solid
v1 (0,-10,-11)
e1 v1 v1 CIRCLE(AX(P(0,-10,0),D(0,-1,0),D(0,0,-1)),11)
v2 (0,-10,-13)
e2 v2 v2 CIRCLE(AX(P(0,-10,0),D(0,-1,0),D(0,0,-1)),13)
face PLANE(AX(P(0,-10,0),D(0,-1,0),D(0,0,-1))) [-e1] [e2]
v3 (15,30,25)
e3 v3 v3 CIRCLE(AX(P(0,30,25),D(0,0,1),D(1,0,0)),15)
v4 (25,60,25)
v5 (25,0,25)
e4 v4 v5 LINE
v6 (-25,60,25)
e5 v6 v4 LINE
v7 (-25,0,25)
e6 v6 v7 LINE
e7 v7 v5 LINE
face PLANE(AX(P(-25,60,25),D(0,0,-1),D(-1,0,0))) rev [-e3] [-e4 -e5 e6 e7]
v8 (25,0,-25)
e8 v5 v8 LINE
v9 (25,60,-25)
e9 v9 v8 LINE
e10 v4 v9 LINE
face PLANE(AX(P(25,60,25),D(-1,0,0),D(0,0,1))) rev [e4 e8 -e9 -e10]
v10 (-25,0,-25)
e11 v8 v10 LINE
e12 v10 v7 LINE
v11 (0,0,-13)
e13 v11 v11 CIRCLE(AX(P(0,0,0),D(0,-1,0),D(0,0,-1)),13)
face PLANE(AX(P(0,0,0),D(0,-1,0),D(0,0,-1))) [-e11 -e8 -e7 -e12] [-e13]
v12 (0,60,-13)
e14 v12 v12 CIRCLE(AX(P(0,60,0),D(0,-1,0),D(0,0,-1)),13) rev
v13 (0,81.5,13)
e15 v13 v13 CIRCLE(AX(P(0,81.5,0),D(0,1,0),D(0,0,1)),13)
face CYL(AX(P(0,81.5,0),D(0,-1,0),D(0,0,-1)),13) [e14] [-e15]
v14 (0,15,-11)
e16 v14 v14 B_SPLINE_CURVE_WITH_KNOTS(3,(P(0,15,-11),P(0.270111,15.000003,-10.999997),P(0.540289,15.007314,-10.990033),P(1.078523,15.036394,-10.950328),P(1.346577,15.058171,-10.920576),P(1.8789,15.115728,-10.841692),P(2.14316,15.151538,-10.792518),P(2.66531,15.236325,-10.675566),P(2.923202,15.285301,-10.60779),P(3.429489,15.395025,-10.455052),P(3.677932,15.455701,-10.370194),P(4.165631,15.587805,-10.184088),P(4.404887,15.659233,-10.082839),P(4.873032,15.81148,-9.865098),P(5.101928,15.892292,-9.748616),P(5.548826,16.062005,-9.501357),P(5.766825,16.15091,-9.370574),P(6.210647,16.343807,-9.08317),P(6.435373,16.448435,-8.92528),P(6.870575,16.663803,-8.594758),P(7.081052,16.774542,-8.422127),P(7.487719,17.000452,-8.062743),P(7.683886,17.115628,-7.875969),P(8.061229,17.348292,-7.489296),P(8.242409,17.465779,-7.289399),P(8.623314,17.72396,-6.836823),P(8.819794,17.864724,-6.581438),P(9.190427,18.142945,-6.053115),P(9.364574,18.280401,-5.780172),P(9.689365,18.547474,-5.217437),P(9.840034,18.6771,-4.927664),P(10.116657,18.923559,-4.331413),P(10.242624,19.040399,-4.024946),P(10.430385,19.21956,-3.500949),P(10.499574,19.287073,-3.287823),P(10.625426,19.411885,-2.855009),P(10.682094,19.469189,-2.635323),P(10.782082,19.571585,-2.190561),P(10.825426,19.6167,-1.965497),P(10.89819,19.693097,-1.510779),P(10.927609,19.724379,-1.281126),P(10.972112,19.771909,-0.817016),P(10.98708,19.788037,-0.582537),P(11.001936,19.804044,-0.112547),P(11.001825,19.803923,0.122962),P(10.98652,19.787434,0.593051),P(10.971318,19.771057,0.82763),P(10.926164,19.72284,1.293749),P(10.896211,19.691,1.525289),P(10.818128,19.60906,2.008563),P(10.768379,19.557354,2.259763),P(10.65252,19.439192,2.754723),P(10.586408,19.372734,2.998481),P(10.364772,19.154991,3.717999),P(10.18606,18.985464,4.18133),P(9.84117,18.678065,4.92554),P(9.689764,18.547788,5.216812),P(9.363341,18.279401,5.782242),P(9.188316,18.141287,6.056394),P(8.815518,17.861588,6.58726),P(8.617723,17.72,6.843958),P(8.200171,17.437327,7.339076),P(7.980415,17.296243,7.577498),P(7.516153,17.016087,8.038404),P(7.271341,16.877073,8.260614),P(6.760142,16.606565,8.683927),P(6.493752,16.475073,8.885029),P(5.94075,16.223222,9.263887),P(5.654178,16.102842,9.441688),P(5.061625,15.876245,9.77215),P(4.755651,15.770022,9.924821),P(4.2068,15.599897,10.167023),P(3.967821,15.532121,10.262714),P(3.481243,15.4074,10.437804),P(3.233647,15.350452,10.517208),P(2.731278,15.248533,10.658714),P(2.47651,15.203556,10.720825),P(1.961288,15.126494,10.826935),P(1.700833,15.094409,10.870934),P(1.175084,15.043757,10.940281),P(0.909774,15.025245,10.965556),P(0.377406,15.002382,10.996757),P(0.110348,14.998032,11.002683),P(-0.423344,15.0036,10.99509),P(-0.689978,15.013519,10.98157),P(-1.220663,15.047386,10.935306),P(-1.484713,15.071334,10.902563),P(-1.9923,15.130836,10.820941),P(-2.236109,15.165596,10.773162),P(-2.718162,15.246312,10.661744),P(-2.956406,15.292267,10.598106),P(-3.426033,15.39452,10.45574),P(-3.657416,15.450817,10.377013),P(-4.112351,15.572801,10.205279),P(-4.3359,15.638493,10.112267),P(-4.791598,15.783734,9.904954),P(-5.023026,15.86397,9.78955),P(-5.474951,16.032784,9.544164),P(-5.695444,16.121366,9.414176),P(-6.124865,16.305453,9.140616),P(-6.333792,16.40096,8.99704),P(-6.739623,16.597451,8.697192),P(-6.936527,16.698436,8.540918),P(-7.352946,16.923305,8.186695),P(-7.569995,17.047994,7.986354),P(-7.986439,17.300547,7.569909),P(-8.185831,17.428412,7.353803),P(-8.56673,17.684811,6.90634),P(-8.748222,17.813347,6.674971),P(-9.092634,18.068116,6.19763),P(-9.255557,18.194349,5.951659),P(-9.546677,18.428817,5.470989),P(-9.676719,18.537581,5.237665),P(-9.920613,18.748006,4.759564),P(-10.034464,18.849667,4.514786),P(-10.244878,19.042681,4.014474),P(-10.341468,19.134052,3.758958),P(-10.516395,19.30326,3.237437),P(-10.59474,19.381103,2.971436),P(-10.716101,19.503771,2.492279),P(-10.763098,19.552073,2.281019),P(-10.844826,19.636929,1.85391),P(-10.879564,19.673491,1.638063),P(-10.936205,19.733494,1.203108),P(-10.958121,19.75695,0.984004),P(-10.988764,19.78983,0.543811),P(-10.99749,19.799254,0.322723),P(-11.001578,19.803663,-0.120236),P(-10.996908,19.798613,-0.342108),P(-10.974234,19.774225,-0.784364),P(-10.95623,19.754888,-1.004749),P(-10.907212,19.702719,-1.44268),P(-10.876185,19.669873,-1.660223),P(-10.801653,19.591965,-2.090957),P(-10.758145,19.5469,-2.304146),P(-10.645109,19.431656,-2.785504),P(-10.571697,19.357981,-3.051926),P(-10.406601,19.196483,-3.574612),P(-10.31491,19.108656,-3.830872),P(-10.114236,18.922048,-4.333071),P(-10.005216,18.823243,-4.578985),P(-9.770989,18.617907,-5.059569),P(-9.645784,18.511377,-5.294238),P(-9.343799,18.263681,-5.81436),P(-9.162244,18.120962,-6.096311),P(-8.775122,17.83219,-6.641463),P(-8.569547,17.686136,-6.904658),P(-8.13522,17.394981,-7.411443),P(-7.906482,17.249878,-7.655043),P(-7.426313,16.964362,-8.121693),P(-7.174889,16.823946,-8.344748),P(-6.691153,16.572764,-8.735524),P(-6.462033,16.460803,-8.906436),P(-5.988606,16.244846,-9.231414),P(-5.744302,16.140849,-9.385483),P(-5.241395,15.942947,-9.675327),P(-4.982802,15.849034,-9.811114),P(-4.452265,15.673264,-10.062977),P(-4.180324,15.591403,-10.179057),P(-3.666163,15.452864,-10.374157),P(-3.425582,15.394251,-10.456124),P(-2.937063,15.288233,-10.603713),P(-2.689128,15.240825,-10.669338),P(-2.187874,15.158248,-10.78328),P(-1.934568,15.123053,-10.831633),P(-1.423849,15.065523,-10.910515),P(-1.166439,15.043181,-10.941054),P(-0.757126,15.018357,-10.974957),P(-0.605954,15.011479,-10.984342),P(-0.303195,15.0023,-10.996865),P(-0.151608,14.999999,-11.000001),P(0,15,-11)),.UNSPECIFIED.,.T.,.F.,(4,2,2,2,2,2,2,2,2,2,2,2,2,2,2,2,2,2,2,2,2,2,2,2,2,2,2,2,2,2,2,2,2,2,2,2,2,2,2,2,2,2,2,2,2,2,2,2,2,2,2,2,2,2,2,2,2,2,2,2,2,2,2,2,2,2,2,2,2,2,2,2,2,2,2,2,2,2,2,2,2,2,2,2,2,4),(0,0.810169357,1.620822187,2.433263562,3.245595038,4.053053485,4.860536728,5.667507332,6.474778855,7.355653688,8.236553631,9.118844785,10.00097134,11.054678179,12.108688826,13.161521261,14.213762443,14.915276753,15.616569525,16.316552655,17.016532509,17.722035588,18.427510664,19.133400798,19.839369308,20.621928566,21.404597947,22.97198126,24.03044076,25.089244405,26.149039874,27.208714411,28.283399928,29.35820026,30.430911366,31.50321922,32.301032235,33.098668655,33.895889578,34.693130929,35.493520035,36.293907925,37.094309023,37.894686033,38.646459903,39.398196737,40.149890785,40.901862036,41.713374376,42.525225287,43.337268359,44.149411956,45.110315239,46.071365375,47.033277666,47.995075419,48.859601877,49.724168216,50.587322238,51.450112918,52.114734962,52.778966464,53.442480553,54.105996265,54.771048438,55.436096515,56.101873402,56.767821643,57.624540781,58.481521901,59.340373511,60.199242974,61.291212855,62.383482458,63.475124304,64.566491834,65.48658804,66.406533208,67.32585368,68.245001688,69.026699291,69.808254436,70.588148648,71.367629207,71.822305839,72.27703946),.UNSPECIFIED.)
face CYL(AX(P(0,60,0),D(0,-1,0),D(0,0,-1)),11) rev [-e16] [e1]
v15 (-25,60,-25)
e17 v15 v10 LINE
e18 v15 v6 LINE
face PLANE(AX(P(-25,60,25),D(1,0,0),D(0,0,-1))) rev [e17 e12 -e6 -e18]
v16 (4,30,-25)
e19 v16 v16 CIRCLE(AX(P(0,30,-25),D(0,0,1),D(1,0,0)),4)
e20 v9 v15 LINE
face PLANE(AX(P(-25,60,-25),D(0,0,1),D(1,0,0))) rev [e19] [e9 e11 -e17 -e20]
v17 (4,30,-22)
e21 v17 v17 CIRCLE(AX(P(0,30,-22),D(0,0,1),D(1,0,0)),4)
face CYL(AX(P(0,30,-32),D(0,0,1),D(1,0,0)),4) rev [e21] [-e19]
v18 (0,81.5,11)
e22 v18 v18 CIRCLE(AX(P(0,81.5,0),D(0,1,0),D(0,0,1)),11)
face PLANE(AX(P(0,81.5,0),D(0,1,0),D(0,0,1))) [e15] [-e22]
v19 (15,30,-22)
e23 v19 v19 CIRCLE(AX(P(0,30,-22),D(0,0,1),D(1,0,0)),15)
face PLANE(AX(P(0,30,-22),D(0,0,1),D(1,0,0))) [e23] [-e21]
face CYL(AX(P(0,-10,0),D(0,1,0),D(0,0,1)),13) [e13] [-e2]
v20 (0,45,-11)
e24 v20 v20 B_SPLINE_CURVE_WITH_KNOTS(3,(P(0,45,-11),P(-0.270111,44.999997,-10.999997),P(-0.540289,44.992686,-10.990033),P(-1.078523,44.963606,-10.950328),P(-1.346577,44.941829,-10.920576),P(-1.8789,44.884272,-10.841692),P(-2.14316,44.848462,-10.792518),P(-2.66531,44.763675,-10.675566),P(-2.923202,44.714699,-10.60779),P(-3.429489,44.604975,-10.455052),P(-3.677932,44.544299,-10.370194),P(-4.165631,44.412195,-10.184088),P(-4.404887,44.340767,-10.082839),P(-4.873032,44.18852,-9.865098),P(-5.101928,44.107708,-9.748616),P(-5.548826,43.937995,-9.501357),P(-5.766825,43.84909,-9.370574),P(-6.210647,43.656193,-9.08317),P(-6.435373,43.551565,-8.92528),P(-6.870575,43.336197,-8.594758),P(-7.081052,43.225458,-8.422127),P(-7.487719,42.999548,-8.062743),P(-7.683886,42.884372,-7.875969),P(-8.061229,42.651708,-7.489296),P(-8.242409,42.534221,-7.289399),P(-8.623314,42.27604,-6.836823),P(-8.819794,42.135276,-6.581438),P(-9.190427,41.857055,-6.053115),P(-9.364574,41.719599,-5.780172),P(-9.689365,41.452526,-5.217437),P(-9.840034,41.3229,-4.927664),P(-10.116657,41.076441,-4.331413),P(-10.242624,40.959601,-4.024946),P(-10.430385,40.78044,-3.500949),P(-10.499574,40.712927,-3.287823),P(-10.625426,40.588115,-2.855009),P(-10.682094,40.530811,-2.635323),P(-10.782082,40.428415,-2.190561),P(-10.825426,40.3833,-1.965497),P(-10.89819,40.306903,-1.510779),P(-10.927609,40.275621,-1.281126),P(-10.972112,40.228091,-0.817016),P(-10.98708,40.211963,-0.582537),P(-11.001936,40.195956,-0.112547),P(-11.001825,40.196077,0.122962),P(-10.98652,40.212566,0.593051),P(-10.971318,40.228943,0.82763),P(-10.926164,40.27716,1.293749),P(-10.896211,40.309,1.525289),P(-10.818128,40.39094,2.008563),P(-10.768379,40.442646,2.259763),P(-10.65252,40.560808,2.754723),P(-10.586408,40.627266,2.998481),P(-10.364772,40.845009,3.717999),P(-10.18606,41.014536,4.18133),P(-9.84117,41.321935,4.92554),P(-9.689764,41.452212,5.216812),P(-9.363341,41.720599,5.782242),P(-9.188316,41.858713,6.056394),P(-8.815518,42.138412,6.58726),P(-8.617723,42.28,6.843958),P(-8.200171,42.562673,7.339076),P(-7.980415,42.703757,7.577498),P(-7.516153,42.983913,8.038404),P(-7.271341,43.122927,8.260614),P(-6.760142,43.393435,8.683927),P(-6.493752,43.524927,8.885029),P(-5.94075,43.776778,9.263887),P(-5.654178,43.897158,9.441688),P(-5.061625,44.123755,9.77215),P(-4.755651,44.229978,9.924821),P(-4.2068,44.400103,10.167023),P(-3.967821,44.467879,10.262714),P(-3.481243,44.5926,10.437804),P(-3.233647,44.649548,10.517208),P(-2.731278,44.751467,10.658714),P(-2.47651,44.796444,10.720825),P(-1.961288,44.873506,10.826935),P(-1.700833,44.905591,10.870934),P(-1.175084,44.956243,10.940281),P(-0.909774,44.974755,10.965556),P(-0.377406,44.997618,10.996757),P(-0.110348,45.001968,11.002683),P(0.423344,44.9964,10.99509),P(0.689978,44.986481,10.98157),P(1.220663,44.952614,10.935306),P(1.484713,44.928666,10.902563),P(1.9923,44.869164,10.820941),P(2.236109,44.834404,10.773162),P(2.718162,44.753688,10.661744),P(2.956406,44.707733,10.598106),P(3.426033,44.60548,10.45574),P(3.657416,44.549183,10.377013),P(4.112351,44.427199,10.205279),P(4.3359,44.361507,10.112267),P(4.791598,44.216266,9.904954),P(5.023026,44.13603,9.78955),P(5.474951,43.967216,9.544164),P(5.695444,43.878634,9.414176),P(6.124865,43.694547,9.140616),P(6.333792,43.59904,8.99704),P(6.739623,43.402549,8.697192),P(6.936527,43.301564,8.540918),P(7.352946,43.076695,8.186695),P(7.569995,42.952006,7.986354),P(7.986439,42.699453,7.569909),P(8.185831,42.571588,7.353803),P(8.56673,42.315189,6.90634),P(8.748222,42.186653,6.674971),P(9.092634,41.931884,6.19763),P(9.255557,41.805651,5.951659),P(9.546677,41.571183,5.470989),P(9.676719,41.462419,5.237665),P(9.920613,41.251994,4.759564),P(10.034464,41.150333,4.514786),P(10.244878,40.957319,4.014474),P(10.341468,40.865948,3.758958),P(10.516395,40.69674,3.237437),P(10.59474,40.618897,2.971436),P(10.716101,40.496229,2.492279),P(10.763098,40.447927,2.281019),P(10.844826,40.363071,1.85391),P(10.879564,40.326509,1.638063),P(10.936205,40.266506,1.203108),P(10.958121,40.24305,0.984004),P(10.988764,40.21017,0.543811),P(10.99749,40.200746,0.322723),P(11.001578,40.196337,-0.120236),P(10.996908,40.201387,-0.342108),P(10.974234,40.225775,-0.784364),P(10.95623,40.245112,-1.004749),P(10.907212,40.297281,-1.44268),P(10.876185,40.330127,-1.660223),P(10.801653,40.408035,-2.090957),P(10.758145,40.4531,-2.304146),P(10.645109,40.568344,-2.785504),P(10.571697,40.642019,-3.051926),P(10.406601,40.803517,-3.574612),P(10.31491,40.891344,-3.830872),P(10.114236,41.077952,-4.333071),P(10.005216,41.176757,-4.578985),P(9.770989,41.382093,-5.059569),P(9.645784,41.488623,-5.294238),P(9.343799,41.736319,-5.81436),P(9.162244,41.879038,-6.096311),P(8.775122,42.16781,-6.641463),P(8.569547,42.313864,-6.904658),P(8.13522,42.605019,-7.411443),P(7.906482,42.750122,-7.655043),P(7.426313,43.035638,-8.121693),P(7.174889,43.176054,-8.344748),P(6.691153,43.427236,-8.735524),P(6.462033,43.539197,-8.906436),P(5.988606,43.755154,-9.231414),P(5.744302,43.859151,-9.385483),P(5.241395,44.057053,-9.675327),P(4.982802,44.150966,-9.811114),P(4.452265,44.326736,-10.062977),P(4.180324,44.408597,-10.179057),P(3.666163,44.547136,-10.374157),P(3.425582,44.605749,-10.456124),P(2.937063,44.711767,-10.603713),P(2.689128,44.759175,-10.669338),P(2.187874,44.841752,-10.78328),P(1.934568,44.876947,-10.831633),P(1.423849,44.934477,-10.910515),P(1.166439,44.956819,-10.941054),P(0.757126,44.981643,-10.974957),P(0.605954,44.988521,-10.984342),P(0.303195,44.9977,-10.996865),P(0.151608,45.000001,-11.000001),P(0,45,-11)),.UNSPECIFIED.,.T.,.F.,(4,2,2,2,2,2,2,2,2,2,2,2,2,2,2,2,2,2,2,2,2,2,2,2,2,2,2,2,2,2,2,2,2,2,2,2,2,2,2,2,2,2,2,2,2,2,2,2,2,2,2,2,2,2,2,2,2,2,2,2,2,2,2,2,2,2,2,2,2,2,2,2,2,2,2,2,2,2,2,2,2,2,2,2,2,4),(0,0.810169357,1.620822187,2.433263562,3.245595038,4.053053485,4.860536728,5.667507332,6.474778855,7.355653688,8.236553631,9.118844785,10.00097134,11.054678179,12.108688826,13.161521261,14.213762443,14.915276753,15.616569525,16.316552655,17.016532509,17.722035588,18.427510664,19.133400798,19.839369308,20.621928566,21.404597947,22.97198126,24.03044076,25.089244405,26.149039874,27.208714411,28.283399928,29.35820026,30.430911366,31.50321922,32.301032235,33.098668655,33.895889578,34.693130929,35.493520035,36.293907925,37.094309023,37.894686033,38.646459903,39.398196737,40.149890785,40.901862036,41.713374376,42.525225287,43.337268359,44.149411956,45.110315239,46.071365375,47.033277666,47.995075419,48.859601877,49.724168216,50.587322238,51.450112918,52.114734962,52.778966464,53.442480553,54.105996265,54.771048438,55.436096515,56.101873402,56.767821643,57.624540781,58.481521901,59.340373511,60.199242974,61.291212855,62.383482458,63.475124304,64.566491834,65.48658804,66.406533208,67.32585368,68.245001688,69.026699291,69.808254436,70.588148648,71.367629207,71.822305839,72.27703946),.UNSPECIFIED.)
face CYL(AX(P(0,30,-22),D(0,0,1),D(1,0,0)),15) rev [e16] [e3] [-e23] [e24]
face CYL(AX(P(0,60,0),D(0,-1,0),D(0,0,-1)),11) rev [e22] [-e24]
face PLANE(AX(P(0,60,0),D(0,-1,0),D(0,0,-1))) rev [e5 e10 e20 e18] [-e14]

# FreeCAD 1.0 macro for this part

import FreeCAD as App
import Part
import Sketcher

V = App.Vector
Q = App.Units.Quantity


def add_polygon(sketch, points):
    """Adds a closed chain of lines whose ends are joined by coincident constraints."""
    first, n = sketch.GeometryCount, len(points)
    for a, b in zip(points, points[1:] + points[:1]):
        sketch.addGeometry(Part.LineSegment(App.Vector(*a, 0), App.Vector(*b, 0)), False)
    for i in range(n):
        sketch.addConstraint(Sketcher.Constraint("Coincident", first + i, 2, first + (i + 1) % n, 1))

doc = App.newDocument("Part")
body = doc.addObject("PartDesign::Body", "Body")

# Sketch on XZ plane
sketch1 = body.newObject("Sketcher::SketchObject", "Sketch")
sketch1.AttachmentSupport = (doc.getObject("XZ_Plane"), [""])
sketch1.MapMode = "FlatFace"
add_polygon(sketch1, [(-25, -25), (-25, 25), (25, 25), (25, -25)])  # lines 0-3
sketch1.addGeometry(Part.Circle(V(0, 0, 0), V(0, 0, 1), 11), False)  # 4
sketch1.addConstraint([
    Sketcher.Constraint("Vertical", 0),
    Sketcher.Constraint("Horizontal", 1),
    Sketcher.Constraint("Vertical", 2),
    Sketcher.Constraint("Horizontal", 3),
    Sketcher.Constraint("Coincident", 4, 3, -1, 1),
    Sketcher.Constraint("Symmetric", 0, 2, 2, 2, -1, 1),
    Sketcher.Constraint("Equal", 3, 0),
    Sketcher.Constraint("Diameter", 4, Q("22 mm")),
    Sketcher.Constraint("DistanceX", 1, 1, 1, 2, Q("50 mm")),
])
pad1 = body.newObject("PartDesign::Pad", "Pad")
pad1.Profile = sketch1
pad1.Length = 60
pad1.Reversed = True

# Sketch on XY plane
sketch2 = body.newObject("Sketcher::SketchObject", "Sketch001")
sketch2.AttachmentSupport = (doc.getObject("XY_Plane"), [""])
sketch2.MapMode = "FlatFace"
sketch2.AttachmentOffset = App.Placement(V(0, 0, 25), App.Rotation())
sketch2.addGeometry(Part.Circle(V(0, 30, 0), V(0, 0, 1), 15), False)
sketch2.addConstraint([
    Sketcher.Constraint("PointOnObject", 0, 3, -2),
    Sketcher.Constraint("Diameter", 0, Q("30 mm")),
    Sketcher.Constraint("DistanceY", -1, 1, 0, 3, Q("30 mm")),
])
pocket1 = body.newObject("PartDesign::Pocket", "Pocket")
pocket1.Profile = sketch2
pocket1.Length = 47

# Sketch on XY plane
sketch3 = body.newObject("Sketcher::SketchObject", "Sketch002")
sketch3.AttachmentSupport = (doc.getObject("XY_Plane"), [""])
sketch3.MapMode = "FlatFace"
sketch3.AttachmentOffset = App.Placement(V(0, 0, -22), App.Rotation())
sketch3.addGeometry(Part.Circle(V(0, 30, 0), V(0, 0, 1), 4), False)
sketch3.addConstraint([
    Sketcher.Constraint("PointOnObject", 0, 3, -2),
    Sketcher.Constraint("Diameter", 0, Q("8 mm")),
    Sketcher.Constraint("DistanceY", -1, 1, 0, 3, Q("30 mm")),
])
pocket2 = body.newObject("PartDesign::Pocket", "Pocket001")
pocket2.Profile = sketch3
pocket2.Length = 10

# Sketch on XZ plane
sketch4 = body.newObject("Sketcher::SketchObject", "Sketch003")
sketch4.AttachmentSupport = (doc.getObject("XZ_Plane"), [""])
sketch4.MapMode = "FlatFace"
sketch4.AttachmentOffset = App.Placement(V(0, 0, -60), App.Rotation())
sketch4.addGeometry([
    Part.Circle(V(0, 0, 0), V(0, 0, 1), 13),
    Part.Circle(V(0, 0, 0), V(0, 0, 1), 11),
], False)
sketch4.addConstraint([
    Sketcher.Constraint("Coincident", 0, 3, -1, 1),
    Sketcher.Constraint("Coincident", 1, 3, -1, 1),
    Sketcher.Constraint("Diameter", 0, Q("26 mm")),
    Sketcher.Constraint("Diameter", 1, Q("22 mm")),
])
pad2 = body.newObject("PartDesign::Pad", "Pad001")
pad2.Profile = sketch4
pad2.Length = 21.5
pad2.Reversed = True

# Sketch on XZ plane
sketch5 = body.newObject("Sketcher::SketchObject", "Sketch004")
sketch5.AttachmentSupport = (doc.getObject("XZ_Plane"), [""])
sketch5.MapMode = "FlatFace"
sketch5.addGeometry([
    Part.Circle(V(0, 0, 0), V(0, 0, 1), 13),
    Part.Circle(V(0, 0, 0), V(0, 0, 1), 11),
], False)
sketch5.addConstraint([
    Sketcher.Constraint("Coincident", 0, 3, -1, 1),
    Sketcher.Constraint("Coincident", 1, 3, -1, 1),
    Sketcher.Constraint("Diameter", 0, Q("26 mm")),
    Sketcher.Constraint("Diameter", 1, Q("22 mm")),
])
pad3 = body.newObject("PartDesign::Pad", "Pad002")
pad3.Profile = sketch5
pad3.Length = 10

doc.recompute()
